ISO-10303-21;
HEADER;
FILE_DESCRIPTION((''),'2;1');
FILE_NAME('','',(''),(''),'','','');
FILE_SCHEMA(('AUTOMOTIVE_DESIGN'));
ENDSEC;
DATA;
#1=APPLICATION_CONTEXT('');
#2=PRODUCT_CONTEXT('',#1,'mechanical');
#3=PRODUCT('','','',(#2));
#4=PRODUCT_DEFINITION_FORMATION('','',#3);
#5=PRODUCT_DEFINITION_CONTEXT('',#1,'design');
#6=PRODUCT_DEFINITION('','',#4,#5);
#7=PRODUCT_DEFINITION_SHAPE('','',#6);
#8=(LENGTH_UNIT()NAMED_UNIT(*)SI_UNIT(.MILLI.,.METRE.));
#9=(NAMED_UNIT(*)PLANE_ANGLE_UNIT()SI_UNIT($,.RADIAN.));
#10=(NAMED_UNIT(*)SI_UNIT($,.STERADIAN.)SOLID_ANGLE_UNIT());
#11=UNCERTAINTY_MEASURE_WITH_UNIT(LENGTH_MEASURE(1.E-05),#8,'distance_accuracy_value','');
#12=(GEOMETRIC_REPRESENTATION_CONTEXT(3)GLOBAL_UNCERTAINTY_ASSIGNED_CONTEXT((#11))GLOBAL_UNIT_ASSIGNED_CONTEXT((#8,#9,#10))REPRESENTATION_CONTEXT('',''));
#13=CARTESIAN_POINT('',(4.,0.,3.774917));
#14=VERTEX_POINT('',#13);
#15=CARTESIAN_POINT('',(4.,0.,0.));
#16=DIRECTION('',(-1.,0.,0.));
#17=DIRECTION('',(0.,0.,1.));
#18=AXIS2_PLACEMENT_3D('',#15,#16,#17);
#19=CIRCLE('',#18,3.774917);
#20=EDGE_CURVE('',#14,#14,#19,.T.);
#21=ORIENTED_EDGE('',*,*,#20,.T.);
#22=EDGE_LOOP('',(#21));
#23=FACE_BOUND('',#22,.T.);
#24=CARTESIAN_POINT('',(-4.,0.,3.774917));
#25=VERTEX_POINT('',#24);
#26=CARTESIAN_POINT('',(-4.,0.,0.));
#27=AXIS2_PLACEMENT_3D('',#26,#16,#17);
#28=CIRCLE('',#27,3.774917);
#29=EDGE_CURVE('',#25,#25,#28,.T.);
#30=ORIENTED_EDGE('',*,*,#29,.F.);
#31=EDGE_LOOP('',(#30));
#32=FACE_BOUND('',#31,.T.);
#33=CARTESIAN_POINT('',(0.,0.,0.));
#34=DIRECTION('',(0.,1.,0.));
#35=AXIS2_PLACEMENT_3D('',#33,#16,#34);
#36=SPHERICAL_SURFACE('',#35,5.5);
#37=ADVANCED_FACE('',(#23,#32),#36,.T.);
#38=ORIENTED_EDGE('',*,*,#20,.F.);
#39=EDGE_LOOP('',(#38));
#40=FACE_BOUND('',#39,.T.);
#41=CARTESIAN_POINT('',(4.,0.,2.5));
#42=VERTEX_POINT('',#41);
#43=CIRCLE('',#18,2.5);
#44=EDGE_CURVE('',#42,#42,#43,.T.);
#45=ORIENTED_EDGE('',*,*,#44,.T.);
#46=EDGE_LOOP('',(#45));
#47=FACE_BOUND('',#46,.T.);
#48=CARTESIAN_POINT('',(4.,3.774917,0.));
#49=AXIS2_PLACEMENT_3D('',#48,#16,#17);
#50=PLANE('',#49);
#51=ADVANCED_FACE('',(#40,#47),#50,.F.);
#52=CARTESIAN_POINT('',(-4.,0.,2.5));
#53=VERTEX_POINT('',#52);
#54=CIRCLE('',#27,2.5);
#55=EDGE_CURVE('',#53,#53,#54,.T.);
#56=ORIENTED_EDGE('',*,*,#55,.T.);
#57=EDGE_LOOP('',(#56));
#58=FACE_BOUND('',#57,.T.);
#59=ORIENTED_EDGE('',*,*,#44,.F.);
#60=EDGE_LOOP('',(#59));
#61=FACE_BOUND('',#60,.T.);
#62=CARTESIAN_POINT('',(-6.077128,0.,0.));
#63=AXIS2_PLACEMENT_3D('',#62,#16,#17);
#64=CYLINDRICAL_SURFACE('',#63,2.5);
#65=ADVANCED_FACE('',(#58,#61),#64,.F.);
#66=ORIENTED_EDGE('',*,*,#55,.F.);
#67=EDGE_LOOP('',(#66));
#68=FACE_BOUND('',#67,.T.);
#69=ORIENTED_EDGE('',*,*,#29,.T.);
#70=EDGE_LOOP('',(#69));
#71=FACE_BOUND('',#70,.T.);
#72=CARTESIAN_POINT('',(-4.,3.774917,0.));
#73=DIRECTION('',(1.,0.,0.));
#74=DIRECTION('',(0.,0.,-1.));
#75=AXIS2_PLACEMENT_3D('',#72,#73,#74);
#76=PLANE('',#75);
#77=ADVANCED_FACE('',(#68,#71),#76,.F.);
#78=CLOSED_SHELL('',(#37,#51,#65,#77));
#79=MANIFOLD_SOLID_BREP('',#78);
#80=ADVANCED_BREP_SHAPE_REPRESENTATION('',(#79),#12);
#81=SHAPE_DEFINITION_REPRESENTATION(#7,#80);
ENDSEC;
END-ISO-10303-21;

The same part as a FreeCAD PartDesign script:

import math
import FreeCAD as App
import Part
import Sketcher
from FreeCAD import Vector

doc = App.newDocument("Part")
body = doc.addObject("PartDesign::Body", "Body")

sketch1 = body.newObject("Sketcher::SketchObject", "Sketch")
sketch1.AttachmentSupport = (doc.getObject("XY_Plane"), [""])
sketch1.MapMode = "FlatFace"
sketch1.addGeometry(Part.LineSegment(Vector(-4, 3.774917, 0), Vector(-4, 2.5, 0)), False)
sketch1.addGeometry(Part.LineSegment(Vector(-4, 2.5, 0), Vector(4, 2.5, 0)), False)
sketch1.addGeometry(Part.LineSegment(Vector(4, 2.5, 0), Vector(4, 3.774917, 0)), False)
sketch1.addGeometry(Part.ArcOfCircle(Part.Circle(Vector(0, 0, 0), Vector(0, 0, 1), 5.5), math.radians(43.341758), math.radians(136.658242)), False)
sketch1.addConstraint(Sketcher.Constraint("Coincident", 0, 2, 1, 1))
sketch1.addConstraint(Sketcher.Constraint("Coincident", 1, 2, 2, 1))
sketch1.addConstraint(Sketcher.Constraint("Coincident", 2, 2, 3, 1))
sketch1.addConstraint(Sketcher.Constraint("Coincident", 3, 2, 0, 1))
sketch1.addConstraint(Sketcher.Constraint("Vertical", 0))
sketch1.addConstraint(Sketcher.Constraint("Horizontal", 1))
sketch1.addConstraint(Sketcher.Constraint("Vertical", 2))
sketch1.addConstraint(Sketcher.Constraint("Coincident", 3, 3, -1, 1))
sketch1.addConstraint(Sketcher.Constraint("Horizontal", 2, 2, 3, 2))
sketch1.addConstraint(Sketcher.Constraint("Radius", 3, 5.5))
sketch1.addConstraint(Sketcher.Constraint("DistanceX", 1, 1, 1, 2, 8.0))
sketch1.addConstraint(Sketcher.Constraint("DistanceY", -1, 1, 0, 2, 2.5))
revolution = body.newObject("PartDesign::Revolution", "Revolution")
revolution.Profile = sketch1
revolution.ReferenceAxis = (sketch1, ["H_Axis"])
revolution.Angle = 360

doc.recompute()
